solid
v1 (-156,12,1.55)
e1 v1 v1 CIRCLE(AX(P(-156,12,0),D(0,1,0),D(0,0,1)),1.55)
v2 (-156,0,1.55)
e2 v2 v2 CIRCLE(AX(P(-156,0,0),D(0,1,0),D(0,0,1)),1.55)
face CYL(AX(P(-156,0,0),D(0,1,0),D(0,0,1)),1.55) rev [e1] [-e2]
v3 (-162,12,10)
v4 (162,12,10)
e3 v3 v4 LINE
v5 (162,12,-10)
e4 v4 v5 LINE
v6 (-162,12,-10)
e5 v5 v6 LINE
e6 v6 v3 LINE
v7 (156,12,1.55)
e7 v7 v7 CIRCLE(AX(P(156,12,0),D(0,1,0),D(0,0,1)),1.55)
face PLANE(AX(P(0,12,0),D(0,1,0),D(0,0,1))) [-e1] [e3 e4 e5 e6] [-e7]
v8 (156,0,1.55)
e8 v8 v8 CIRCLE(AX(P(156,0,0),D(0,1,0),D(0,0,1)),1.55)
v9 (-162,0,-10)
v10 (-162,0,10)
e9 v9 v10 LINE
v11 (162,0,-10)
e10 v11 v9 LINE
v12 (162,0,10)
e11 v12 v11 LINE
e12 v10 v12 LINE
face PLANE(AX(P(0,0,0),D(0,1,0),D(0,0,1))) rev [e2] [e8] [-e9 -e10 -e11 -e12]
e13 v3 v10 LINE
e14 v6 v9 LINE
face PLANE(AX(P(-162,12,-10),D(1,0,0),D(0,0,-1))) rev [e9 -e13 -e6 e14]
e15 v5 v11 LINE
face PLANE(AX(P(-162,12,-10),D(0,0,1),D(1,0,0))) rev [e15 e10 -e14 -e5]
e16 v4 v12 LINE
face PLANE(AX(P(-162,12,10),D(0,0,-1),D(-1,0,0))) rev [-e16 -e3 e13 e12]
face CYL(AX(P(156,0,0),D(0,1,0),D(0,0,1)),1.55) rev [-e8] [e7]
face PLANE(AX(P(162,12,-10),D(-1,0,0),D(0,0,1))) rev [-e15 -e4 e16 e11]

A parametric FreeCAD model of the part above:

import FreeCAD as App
import Part
import Sketcher

V = App.Vector
Q = App.Units.Quantity


def add_polygon(sketch, points):
    """Adds a closed chain of lines whose ends are joined by coincident constraints."""
    first, n = sketch.GeometryCount, len(points)
    for a, b in zip(points, points[1:] + points[:1]):
        sketch.addGeometry(Part.LineSegment(App.Vector(*a, 0), App.Vector(*b, 0)), False)
    for i in range(n):
        sketch.addConstraint(Sketcher.Constraint("Coincident", first + i, 2, first + (i + 1) % n, 1))

doc = App.newDocument("Part")
params = doc.addObject("Spreadsheet::Sheet", "Params")
for row, (alias, value) in enumerate([
    ("sketch1_width", "324 mm"),
    ("sketch1_height", "20 mm"),
    ("pad1_length", "12 mm"),
    ("sketch2_diameter", "3.1 mm"),
], start=1):
    params.set(f"A{row}", alias)
    params.set(f"B{row}", "=" + value)
    params.setAlias(f"B{row}", alias)

body = doc.addObject("PartDesign::Body", "Body")

sketch1 = body.newObject("Sketcher::SketchObject", "Sketch")
sketch1.AttachmentSupport = (doc.getObject("XZ_Plane"), [""])
sketch1.MapMode = "FlatFace"
add_polygon(sketch1, [(-162, -10), (-162, 10), (162, 10), (162, -10)])
sketch1.addConstraint([
    Sketcher.Constraint("Vertical", 0),
    Sketcher.Constraint("Horizontal", 1),
    Sketcher.Constraint("Vertical", 2),
    Sketcher.Constraint("Horizontal", 3),
    Sketcher.Constraint("Symmetric", 0, 2, 2, 2, -1, 1),
    Sketcher.Constraint("DistanceX", 1, 1, 1, 2, Q("324 mm")),
    Sketcher.Constraint("DistanceY", 0, 1, 0, 2, Q("20 mm")),
])
sketch1.setExpression("Constraints[9]", "Params.sketch1_width")
sketch1.setExpression("Constraints[10]", "Params.sketch1_height")
pad1 = body.newObject("PartDesign::Pad", "Pad")
pad1.Profile = sketch1
pad1.setExpression("Length", "Params.pad1_length")
pad1.Reversed = True

sketch2 = body.newObject("Sketcher::SketchObject", "Sketch001")
sketch2.AttachmentSupport = (doc.getObject("XZ_Plane"), [""])
sketch2.MapMode = "FlatFace"
sketch2.AttachmentOffset = App.Placement(V(0, 0, -12), App.Rotation())
sketch2.addGeometry([
    Part.Circle(V(-156, 0, 0), V(0, 0, 1), 1.6),
    Part.Circle(V(156, 0, 0), V(0, 0, 1), 1.6),
], False)
sketch2.addConstraint([
    Sketcher.Constraint("Equal", 0, 1),
    Sketcher.Constraint("Symmetric", 0, 3, 1, 3, -1, 1),
    Sketcher.Constraint("PointOnObject", 0, 3, -1),
    Sketcher.Constraint("Diameter", 0, Q("3.1 mm")),
    Sketcher.Constraint("DistanceX", 0, 3, -1, 1, Q("156 mm")),
])
sketch2.setExpression("Constraints[3]", "Params.sketch2_diameter")
pocket1 = body.newObject("PartDesign::Pocket", "Pocket")
pocket1.Profile = sketch2
pocket1.Type = "ThroughAll"
pocket1.Reversed = True

doc.recompute()
